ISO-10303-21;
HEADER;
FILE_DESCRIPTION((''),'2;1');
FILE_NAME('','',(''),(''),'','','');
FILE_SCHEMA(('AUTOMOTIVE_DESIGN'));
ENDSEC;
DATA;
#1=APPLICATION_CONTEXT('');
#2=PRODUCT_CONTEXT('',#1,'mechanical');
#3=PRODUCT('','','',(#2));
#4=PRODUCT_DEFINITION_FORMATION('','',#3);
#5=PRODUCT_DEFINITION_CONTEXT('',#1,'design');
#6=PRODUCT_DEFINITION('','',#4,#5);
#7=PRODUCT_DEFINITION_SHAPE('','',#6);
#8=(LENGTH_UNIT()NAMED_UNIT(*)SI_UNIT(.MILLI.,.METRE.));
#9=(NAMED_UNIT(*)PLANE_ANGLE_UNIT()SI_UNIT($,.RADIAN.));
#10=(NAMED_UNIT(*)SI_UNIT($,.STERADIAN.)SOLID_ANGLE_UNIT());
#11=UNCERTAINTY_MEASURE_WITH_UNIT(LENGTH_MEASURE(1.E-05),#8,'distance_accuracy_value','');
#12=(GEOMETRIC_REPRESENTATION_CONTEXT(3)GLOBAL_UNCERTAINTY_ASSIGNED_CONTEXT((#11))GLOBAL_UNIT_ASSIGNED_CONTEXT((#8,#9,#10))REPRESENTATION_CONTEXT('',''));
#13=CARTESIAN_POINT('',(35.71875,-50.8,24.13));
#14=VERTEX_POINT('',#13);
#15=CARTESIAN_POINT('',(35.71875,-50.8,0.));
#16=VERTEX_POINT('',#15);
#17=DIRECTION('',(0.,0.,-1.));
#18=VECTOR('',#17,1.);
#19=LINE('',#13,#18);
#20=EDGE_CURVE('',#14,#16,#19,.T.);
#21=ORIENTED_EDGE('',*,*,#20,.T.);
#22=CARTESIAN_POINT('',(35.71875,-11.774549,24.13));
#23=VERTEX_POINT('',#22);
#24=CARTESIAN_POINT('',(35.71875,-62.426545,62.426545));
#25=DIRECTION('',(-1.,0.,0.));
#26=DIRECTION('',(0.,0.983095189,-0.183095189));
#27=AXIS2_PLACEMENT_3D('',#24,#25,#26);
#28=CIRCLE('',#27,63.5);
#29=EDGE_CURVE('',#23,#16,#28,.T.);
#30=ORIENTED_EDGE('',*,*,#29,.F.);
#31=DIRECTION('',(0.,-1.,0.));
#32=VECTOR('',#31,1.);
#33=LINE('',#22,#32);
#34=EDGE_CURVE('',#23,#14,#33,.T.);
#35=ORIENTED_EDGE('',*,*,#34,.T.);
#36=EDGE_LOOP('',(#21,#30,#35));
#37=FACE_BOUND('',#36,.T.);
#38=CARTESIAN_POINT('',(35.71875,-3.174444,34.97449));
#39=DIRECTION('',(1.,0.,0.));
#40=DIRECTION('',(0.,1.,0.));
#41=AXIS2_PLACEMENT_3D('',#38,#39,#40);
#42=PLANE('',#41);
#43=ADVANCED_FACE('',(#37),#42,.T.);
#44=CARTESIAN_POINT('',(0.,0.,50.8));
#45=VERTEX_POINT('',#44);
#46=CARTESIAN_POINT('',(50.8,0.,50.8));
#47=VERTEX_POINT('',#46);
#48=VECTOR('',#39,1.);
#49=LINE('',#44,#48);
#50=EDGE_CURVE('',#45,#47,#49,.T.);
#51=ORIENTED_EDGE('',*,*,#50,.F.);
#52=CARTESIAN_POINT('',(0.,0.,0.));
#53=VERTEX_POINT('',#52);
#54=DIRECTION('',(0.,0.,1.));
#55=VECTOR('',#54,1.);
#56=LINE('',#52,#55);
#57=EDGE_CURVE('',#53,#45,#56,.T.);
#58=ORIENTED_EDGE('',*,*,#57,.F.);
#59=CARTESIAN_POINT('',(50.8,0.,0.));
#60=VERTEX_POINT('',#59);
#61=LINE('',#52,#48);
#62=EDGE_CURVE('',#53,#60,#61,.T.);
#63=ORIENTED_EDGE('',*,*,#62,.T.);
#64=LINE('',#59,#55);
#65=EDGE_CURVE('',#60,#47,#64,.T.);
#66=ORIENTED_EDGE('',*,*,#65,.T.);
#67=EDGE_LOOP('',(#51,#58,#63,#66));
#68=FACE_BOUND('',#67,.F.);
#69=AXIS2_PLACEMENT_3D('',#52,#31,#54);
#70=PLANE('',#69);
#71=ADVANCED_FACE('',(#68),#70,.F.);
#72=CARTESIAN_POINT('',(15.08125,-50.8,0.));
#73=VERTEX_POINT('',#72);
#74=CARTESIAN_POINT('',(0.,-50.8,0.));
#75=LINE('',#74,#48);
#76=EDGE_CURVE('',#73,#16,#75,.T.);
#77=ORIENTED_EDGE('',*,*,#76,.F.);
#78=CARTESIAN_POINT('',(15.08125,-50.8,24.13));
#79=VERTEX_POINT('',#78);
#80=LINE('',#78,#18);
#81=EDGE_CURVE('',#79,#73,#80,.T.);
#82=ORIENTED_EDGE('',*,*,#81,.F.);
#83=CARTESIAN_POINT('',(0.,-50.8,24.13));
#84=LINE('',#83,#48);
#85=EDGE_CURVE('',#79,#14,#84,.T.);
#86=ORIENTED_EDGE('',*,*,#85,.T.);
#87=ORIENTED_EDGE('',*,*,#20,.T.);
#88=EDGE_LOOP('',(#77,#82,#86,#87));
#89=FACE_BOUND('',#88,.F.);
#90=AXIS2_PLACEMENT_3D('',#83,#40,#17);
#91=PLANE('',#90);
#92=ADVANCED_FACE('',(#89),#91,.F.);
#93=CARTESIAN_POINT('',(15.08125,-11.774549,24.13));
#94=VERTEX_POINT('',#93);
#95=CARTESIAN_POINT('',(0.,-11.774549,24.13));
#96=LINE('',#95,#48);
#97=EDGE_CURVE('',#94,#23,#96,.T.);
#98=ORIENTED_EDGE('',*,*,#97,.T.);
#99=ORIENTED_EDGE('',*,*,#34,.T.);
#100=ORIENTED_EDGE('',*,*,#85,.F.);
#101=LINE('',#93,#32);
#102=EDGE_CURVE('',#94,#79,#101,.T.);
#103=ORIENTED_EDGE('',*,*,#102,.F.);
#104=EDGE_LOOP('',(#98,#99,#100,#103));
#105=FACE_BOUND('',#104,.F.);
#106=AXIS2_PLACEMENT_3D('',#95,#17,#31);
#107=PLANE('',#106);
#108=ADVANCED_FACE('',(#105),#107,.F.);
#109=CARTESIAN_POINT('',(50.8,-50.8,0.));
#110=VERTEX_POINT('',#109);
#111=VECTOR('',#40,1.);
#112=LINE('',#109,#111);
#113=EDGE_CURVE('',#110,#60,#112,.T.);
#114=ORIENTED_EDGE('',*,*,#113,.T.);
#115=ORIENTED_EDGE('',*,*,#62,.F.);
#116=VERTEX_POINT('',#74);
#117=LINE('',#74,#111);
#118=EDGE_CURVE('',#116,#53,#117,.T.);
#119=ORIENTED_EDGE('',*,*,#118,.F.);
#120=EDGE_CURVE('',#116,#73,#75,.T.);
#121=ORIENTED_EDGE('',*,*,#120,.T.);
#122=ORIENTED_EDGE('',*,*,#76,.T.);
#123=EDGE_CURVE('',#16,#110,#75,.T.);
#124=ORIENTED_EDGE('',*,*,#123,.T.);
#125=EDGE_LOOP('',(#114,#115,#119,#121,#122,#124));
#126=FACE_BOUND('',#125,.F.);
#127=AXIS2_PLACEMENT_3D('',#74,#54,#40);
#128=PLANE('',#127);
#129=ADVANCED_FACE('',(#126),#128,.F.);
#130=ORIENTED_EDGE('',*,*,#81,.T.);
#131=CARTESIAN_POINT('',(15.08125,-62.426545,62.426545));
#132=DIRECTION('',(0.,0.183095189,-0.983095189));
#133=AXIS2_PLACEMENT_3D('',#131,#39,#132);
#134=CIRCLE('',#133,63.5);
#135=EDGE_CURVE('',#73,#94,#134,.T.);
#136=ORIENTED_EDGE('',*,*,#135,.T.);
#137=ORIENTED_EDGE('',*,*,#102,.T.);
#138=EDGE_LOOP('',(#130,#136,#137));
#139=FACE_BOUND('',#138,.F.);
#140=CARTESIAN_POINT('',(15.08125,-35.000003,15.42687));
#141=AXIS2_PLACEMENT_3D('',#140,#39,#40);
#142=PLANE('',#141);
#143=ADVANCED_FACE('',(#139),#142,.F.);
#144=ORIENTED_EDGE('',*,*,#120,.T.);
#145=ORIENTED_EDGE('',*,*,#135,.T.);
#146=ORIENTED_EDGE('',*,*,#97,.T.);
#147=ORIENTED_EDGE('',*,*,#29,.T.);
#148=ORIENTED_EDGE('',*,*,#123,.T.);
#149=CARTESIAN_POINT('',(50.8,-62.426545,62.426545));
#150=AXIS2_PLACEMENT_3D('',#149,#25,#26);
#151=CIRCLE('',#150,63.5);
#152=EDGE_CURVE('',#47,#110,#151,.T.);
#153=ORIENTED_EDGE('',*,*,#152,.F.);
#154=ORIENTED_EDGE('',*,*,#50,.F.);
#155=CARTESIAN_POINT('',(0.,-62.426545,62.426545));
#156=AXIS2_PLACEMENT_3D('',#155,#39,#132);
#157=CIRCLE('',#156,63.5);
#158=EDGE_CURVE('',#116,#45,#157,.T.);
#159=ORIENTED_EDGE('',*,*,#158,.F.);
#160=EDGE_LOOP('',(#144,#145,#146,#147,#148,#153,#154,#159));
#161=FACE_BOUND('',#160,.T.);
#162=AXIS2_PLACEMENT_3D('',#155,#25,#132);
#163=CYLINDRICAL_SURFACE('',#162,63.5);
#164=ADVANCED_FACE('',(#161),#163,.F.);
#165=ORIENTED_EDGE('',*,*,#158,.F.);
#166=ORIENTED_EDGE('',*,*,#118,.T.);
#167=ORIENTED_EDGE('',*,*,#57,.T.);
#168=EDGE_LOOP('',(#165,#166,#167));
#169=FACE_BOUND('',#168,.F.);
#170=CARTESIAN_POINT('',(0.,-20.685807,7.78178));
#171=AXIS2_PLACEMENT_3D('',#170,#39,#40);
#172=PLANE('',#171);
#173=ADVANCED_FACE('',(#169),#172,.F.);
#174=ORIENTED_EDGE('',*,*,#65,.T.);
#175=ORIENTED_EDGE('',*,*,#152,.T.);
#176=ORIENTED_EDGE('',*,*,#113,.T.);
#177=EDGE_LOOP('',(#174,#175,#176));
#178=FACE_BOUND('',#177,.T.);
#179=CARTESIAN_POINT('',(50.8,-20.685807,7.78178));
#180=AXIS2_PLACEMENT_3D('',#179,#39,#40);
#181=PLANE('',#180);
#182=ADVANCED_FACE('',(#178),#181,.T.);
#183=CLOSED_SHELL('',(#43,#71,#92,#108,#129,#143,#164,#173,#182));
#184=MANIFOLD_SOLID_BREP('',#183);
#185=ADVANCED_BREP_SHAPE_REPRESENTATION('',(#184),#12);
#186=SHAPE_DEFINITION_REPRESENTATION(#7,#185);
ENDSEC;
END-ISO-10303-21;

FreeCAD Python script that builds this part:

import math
import FreeCAD as App
import Part
import Sketcher

V = App.Vector
Q = App.Units.Quantity

doc = App.newDocument("Part")
body = doc.addObject("PartDesign::Body", "Body")

sketch1 = body.newObject("Sketcher::SketchObject", "Sketch")
sketch1.AttachmentSupport = (doc.getObject("YZ_Plane"), [""])
sketch1.MapMode = "FlatFace"
sketch1.addGeometry([
    Part.LineSegment(V(-51, 0, 0), V(0, 0, 0)),
    Part.LineSegment(V(0, 0, 0), V(0, 51, 0)),
    Part.ArcOfCircle(Part.Circle(V(-62, 62, 0), V(0, 0, 1), 64), math.radians(-79), math.radians(-11)),
], False)
sketch1.addConstraint([
    Sketcher.Constraint("Coincident", 0, 2, 1, 1),
    Sketcher.Constraint("Coincident", 1, 2, 2, 2),
    Sketcher.Constraint("Coincident", 2, 1, 0, 1),
    Sketcher.Constraint("Horizontal", 0),
    Sketcher.Constraint("Vertical", 1),
    Sketcher.Constraint("Coincident", 0, 2, -1, 1),
    Sketcher.Constraint("Equal", 0, 1),
    Sketcher.Constraint("Radius", 2, Q("2.5 in")),
    Sketcher.Constraint("DistanceX", 0, 1, 0, 2, Q("2 in")),
])
pad1 = body.newObject("PartDesign::Pad", "Pad")
pad1.Profile = sketch1
pad1.Length = Q("2 in")

sketch2 = body.newObject("Sketcher::SketchObject", "Sketch001")
sketch2.AttachmentSupport = (doc.getObject("YZ_Plane"), [""])
sketch2.MapMode = "FlatFace"
sketch2.addGeometry([
    Part.ArcOfCircle(Part.Circle(V(-62, 62, 0), V(0, 0, 1), 64), math.radians(-37), math.radians(-11)),
    Part.LineSegment(V(-12, 24, 0), V(-51, 24, 0)),
    Part.LineSegment(V(-51, 24, 0), V(-51, 0, 0)),
    Part.LineSegment(V(-51, 0, 0), V(0, 0, 0)),
    Part.LineSegment(V(0, 0, 0), V(0, 51, 0)),
], False)
sketch2.addConstraint([
    Sketcher.Constraint("Coincident", 0, 1, 1, 1),
    Sketcher.Constraint("Coincident", 1, 2, 2, 1),
    Sketcher.Constraint("Coincident", 2, 2, 3, 1),
    Sketcher.Constraint("Coincident", 3, 2, 4, 1),
    Sketcher.Constraint("Coincident", 4, 2, 0, 2),
    Sketcher.Constraint("Horizontal", 1),
    Sketcher.Constraint("Vertical", 2),
    Sketcher.Constraint("Horizontal", 3),
    Sketcher.Constraint("Vertical", 4),
    Sketcher.Constraint("Coincident", 3, 2, -1, 1),
    Sketcher.Constraint("Equal", 3, 4),
    Sketcher.Constraint("Radius", 0, Q("2.5 in")),
    Sketcher.Constraint("DistanceX", 3, 1, 3, 2, Q("2 in")),
    Sketcher.Constraint("DistanceY", 2, 2, 2, 1, Q("0.95 in")),
    Sketcher.Constraint("DistanceX", 1, 2, 1, 1, Q("39.025451 mm")),
])
pad2 = body.newObject("PartDesign::Pad", "Pad001")
pad2.Profile = sketch2
pad2.Length = Q("1.40625 in")

sketch3 = body.newObject("Sketcher::SketchObject", "Sketch002")
sketch3.AttachmentSupport = (doc.getObject("YZ_Plane"), [""])
sketch3.MapMode = "FlatFace"
sketch3.addGeometry([
    Part.LineSegment(V(-51, 24, 0), V(-51, 0, 0)),
    Part.ArcOfCircle(Part.Circle(V(-62, 62, 0), V(0, 0, 1), 64), math.radians(-79), math.radians(-37)),
    Part.LineSegment(V(-12, 24, 0), V(-51, 24, 0)),
], False)
sketch3.addConstraint([
    Sketcher.Constraint("Coincident", 0, 2, 1, 1),
    Sketcher.Constraint("Coincident", 1, 2, 2, 1),
    Sketcher.Constraint("Coincident", 2, 2, 0, 1),
    Sketcher.Constraint("Vertical", 0),
    Sketcher.Constraint("Horizontal", 2),
    Sketcher.Constraint("PointOnObject", 0, 2, -1),
    Sketcher.Constraint("Radius", 1, Q("2.5 in")),
    Sketcher.Constraint("DistanceX", 0, 2, -1, 1, Q("2 in")),
    Sketcher.Constraint("DistanceY", 0, 2, 0, 1, Q("0.95 in")),
    Sketcher.Constraint("DistanceX", 2, 2, 2, 1, Q("39.025451 mm")),
])
pocket1 = body.newObject("PartDesign::Pocket", "Pocket")
pocket1.Profile = sketch3
pocket1.Length = Q("0.59375 in")
pocket1.Reversed = True

doc.recompute()
